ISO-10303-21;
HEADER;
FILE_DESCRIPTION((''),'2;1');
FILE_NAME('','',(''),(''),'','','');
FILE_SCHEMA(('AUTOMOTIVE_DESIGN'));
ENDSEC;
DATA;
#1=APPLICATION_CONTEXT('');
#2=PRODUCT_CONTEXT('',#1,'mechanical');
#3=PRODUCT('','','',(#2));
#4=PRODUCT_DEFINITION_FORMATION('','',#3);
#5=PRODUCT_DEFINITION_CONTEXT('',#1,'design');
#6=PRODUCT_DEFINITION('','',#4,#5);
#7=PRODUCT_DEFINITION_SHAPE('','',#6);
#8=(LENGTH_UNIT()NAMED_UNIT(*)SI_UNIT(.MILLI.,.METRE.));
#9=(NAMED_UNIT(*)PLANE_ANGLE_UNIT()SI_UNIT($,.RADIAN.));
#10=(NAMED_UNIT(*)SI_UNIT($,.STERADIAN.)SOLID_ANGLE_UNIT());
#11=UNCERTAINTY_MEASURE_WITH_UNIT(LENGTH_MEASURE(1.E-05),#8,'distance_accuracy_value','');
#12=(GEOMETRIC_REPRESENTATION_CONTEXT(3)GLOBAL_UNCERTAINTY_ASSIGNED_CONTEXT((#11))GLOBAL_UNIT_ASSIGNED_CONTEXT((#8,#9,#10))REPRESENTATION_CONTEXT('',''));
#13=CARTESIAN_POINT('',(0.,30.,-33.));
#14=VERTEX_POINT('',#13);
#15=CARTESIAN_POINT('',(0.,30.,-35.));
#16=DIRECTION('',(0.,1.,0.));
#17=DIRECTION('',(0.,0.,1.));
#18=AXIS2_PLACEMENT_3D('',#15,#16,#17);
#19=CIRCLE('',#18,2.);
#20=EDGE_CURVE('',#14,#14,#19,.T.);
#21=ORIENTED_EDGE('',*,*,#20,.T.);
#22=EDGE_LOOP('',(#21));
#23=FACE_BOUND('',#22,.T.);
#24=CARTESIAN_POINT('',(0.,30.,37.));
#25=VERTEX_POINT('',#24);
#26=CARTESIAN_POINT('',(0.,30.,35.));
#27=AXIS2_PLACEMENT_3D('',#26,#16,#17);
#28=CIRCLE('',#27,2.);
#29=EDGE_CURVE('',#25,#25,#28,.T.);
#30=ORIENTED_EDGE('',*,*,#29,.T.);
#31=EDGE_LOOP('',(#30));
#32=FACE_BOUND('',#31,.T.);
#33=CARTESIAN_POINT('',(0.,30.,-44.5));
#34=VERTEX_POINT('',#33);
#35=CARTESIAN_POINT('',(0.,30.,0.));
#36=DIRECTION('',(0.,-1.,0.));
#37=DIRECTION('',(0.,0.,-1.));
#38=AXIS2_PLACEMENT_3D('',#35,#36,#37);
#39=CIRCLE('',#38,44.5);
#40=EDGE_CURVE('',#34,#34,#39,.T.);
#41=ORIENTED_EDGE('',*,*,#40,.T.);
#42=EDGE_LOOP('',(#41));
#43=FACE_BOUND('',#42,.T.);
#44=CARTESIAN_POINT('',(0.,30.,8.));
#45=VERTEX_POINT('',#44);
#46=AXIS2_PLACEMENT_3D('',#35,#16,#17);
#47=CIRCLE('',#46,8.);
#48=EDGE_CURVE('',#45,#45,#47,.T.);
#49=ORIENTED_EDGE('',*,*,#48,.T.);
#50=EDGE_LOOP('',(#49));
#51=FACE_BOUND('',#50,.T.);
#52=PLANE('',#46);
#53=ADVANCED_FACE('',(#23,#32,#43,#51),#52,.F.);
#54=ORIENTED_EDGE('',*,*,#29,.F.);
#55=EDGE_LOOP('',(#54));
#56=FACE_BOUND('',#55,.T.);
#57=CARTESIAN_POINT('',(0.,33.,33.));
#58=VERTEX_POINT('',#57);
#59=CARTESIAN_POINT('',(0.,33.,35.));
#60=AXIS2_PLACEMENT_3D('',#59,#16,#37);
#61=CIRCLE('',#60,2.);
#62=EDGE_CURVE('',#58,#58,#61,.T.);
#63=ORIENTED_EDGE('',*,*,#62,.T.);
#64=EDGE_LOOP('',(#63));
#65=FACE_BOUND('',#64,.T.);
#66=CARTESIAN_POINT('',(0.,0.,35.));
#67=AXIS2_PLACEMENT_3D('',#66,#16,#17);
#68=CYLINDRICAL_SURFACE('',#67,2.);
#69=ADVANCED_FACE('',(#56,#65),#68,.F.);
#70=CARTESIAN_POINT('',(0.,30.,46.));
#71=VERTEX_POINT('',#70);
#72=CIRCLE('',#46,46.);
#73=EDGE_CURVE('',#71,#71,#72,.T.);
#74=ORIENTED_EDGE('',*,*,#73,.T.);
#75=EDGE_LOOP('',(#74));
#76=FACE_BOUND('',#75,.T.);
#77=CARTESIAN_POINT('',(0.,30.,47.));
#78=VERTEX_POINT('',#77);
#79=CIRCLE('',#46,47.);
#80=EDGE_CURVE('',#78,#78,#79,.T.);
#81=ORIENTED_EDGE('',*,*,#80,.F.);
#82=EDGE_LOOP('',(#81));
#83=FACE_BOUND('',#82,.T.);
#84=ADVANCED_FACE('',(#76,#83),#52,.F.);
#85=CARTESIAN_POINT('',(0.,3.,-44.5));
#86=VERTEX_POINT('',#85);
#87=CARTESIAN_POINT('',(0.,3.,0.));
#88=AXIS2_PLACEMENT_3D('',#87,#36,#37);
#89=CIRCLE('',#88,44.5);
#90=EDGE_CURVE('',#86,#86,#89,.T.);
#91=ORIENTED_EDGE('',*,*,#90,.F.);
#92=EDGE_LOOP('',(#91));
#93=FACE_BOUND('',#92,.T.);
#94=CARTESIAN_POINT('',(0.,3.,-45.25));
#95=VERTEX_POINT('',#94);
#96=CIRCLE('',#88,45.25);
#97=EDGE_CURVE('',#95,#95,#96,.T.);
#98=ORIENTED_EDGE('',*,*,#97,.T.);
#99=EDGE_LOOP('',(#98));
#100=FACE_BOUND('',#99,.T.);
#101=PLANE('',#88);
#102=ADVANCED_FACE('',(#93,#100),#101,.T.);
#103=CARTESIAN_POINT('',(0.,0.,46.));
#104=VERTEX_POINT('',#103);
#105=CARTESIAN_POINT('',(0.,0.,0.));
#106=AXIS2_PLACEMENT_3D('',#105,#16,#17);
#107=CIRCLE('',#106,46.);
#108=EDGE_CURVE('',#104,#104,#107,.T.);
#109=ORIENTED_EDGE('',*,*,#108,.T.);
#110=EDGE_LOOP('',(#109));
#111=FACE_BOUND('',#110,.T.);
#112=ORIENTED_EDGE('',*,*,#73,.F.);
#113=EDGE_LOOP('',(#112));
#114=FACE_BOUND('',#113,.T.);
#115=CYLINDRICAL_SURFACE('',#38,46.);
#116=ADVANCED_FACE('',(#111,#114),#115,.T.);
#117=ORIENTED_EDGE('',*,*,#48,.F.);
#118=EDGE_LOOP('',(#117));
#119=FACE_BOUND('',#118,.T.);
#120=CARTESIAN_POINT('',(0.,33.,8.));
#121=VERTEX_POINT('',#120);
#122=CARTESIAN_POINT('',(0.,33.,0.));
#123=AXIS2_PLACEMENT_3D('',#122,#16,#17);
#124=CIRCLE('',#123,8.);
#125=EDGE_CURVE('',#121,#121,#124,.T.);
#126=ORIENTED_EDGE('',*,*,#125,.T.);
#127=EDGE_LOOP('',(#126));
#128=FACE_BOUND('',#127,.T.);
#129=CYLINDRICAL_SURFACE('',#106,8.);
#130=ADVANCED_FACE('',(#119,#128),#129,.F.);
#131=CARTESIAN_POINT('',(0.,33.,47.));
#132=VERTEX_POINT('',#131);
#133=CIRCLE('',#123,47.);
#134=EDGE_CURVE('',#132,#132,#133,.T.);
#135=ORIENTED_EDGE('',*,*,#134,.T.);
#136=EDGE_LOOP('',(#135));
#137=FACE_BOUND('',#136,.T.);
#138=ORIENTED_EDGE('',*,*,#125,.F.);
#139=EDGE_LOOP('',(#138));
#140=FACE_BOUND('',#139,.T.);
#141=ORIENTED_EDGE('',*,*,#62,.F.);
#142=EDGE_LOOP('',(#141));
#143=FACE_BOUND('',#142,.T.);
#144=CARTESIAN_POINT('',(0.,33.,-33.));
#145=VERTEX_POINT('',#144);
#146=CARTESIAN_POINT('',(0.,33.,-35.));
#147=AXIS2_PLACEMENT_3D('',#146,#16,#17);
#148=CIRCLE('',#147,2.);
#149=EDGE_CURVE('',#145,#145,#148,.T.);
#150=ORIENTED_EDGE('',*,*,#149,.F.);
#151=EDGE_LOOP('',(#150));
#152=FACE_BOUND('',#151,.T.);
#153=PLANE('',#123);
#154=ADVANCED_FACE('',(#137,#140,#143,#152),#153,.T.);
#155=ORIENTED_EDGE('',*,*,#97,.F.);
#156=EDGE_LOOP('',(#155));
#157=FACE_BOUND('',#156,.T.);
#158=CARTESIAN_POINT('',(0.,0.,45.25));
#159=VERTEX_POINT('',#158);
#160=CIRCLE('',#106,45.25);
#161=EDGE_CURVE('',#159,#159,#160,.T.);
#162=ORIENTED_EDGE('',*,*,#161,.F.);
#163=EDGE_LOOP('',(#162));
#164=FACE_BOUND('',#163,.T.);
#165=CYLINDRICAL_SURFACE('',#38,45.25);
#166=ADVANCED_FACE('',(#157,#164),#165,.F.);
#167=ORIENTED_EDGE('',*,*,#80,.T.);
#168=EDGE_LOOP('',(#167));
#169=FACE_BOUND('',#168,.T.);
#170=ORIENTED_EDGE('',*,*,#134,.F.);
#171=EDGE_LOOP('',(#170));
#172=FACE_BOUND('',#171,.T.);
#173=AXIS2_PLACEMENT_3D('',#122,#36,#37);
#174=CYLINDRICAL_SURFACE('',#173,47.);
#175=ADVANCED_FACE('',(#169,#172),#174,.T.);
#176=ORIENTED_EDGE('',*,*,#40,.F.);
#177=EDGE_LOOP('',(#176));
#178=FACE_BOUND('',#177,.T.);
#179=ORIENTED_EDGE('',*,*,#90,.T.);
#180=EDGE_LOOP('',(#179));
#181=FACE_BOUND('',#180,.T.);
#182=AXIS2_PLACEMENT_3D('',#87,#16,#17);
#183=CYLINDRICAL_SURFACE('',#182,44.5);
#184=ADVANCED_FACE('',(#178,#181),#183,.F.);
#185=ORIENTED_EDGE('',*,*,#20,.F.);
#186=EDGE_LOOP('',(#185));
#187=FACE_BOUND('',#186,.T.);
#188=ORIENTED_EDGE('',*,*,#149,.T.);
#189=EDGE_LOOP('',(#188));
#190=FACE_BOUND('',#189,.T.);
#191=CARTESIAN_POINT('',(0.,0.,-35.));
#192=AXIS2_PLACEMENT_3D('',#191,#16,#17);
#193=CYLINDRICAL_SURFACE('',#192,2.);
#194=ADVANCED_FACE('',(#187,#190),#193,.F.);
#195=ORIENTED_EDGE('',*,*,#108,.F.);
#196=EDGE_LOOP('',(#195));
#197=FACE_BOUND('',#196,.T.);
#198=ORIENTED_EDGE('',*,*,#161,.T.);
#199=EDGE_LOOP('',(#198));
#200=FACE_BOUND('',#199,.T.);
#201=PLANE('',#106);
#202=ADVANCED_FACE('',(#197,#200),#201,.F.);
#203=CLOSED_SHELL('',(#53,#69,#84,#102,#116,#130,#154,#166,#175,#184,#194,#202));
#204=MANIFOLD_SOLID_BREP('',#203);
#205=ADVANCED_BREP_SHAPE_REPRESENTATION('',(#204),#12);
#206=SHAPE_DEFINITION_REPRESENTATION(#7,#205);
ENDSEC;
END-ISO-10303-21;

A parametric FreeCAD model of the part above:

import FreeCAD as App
import Part
import Sketcher

doc = App.newDocument("Part")
body = doc.addObject("PartDesign::Body", "Body")

# Sketch on XZ plane
sketch1 = body.newObject("Sketcher::SketchObject", "Sketch")
sketch1.AttachmentSupport = (doc.getObject("XZ_Plane"), [""])
sketch1.MapMode = "FlatFace"
sketch1.addGeometry(Part.Circle(App.Vector(0, 0, 0), App.Vector(0, 0, 1), 46), False)
sketch1.addGeometry(Part.Circle(App.Vector(0, 0, 0), App.Vector(0, 0, 1), 45), False)
sketch1.addConstraint(Sketcher.Constraint("Coincident", 0, 3, -1, 1))
sketch1.addConstraint(Sketcher.Constraint("Coincident", 1, 3, -1, 1))
sketch1.addConstraint(Sketcher.Constraint("Diameter", 0, 92.0))
sketch1.addConstraint(Sketcher.Constraint("Diameter", 1, 90.5))
pad1 = body.newObject("PartDesign::Pad", "Pad")
pad1.Profile = sketch1
pad1.Length = 30
pad1.Reversed = True

# Sketch on XZ plane
sketch2 = body.newObject("Sketcher::SketchObject", "Sketch001")
sketch2.AttachmentSupport = (doc.getObject("XZ_Plane"), [""])
sketch2.MapMode = "FlatFace"
sketch2.AttachmentOffset = App.Placement(App.Vector(0, 0, -30), App.Rotation())
sketch2.addGeometry(Part.Circle(App.Vector(0, 0, 0), App.Vector(0, 0, 1), 47), False)
sketch2.addConstraint(Sketcher.Constraint("Coincident", 0, 3, -1, 1))
sketch2.addConstraint(Sketcher.Constraint("Diameter", 0, 94.0))
pad2 = body.newObject("PartDesign::Pad", "Pad001")
pad2.Profile = sketch2
pad2.Length = 3
pad2.Reversed = True

# Sketch on XZ plane
sketch3 = body.newObject("Sketcher::SketchObject", "Sketch002")
sketch3.AttachmentSupport = (doc.getObject("XZ_Plane"), [""])
sketch3.MapMode = "FlatFace"
sketch3.AttachmentOffset = App.Placement(App.Vector(0, 0, -33), App.Rotation())
sketch3.addGeometry(Part.Circle(App.Vector(0, -35, 0), App.Vector(0, 0, 1), 2), False)
sketch3.addGeometry(Part.Circle(App.Vector(0, 35, 0), App.Vector(0, 0, 1), 2), False)
sketch3.addGeometry(Part.Circle(App.Vector(0, 0, 0), App.Vector(0, 0, 1), 8), False)
sketch3.addConstraint(Sketcher.Constraint("Coincident", 2, 3, -1, 1))
sketch3.addConstraint(Sketcher.Constraint("Equal", 0, 1))
sketch3.addConstraint(Sketcher.Constraint("Symmetric", 0, 3, 1, 3, -1, 1))
sketch3.addConstraint(Sketcher.Constraint("PointOnObject", 0, 3, -2))
sketch3.addConstraint(Sketcher.Constraint("Diameter", 0, 4.0))
sketch3.addConstraint(Sketcher.Constraint("Diameter", 2, 16.0))
sketch3.addConstraint(Sketcher.Constraint("DistanceY", 0, 3, -1, 1, 35.0))
pocket1 = body.newObject("PartDesign::Pocket", "Pocket")
pocket1.Profile = sketch3
pocket1.Type = "ThroughAll"
pocket1.Reversed = True

# Sketch on XZ plane
sketch4 = body.newObject("Sketcher::SketchObject", "Sketch003")
sketch4.AttachmentSupport = (doc.getObject("XZ_Plane"), [""])
sketch4.MapMode = "FlatFace"
sketch4.AttachmentOffset = App.Placement(App.Vector(0, 0, -3), App.Rotation())
sketch4.addGeometry(Part.Circle(App.Vector(0, 0, 0), App.Vector(0, 0, 1), 45), False)
sketch4.addGeometry(Part.Circle(App.Vector(0, 0, 0), App.Vector(0, 0, 1), 44), False)
sketch4.addConstraint(Sketcher.Constraint("Coincident", 0, 3, -1, 1))
sketch4.addConstraint(Sketcher.Constraint("Coincident", 1, 3, -1, 1))
sketch4.addConstraint(Sketcher.Constraint("Diameter", 1, 89.0))
sketch4.addConstraint(Sketcher.Constraint("Diameter", 0, 90.5))
pad3 = body.newObject("PartDesign::Pad", "Pad002")
pad3.Profile = sketch4
pad3.Length = 27
pad3.Reversed = True

doc.recompute()
